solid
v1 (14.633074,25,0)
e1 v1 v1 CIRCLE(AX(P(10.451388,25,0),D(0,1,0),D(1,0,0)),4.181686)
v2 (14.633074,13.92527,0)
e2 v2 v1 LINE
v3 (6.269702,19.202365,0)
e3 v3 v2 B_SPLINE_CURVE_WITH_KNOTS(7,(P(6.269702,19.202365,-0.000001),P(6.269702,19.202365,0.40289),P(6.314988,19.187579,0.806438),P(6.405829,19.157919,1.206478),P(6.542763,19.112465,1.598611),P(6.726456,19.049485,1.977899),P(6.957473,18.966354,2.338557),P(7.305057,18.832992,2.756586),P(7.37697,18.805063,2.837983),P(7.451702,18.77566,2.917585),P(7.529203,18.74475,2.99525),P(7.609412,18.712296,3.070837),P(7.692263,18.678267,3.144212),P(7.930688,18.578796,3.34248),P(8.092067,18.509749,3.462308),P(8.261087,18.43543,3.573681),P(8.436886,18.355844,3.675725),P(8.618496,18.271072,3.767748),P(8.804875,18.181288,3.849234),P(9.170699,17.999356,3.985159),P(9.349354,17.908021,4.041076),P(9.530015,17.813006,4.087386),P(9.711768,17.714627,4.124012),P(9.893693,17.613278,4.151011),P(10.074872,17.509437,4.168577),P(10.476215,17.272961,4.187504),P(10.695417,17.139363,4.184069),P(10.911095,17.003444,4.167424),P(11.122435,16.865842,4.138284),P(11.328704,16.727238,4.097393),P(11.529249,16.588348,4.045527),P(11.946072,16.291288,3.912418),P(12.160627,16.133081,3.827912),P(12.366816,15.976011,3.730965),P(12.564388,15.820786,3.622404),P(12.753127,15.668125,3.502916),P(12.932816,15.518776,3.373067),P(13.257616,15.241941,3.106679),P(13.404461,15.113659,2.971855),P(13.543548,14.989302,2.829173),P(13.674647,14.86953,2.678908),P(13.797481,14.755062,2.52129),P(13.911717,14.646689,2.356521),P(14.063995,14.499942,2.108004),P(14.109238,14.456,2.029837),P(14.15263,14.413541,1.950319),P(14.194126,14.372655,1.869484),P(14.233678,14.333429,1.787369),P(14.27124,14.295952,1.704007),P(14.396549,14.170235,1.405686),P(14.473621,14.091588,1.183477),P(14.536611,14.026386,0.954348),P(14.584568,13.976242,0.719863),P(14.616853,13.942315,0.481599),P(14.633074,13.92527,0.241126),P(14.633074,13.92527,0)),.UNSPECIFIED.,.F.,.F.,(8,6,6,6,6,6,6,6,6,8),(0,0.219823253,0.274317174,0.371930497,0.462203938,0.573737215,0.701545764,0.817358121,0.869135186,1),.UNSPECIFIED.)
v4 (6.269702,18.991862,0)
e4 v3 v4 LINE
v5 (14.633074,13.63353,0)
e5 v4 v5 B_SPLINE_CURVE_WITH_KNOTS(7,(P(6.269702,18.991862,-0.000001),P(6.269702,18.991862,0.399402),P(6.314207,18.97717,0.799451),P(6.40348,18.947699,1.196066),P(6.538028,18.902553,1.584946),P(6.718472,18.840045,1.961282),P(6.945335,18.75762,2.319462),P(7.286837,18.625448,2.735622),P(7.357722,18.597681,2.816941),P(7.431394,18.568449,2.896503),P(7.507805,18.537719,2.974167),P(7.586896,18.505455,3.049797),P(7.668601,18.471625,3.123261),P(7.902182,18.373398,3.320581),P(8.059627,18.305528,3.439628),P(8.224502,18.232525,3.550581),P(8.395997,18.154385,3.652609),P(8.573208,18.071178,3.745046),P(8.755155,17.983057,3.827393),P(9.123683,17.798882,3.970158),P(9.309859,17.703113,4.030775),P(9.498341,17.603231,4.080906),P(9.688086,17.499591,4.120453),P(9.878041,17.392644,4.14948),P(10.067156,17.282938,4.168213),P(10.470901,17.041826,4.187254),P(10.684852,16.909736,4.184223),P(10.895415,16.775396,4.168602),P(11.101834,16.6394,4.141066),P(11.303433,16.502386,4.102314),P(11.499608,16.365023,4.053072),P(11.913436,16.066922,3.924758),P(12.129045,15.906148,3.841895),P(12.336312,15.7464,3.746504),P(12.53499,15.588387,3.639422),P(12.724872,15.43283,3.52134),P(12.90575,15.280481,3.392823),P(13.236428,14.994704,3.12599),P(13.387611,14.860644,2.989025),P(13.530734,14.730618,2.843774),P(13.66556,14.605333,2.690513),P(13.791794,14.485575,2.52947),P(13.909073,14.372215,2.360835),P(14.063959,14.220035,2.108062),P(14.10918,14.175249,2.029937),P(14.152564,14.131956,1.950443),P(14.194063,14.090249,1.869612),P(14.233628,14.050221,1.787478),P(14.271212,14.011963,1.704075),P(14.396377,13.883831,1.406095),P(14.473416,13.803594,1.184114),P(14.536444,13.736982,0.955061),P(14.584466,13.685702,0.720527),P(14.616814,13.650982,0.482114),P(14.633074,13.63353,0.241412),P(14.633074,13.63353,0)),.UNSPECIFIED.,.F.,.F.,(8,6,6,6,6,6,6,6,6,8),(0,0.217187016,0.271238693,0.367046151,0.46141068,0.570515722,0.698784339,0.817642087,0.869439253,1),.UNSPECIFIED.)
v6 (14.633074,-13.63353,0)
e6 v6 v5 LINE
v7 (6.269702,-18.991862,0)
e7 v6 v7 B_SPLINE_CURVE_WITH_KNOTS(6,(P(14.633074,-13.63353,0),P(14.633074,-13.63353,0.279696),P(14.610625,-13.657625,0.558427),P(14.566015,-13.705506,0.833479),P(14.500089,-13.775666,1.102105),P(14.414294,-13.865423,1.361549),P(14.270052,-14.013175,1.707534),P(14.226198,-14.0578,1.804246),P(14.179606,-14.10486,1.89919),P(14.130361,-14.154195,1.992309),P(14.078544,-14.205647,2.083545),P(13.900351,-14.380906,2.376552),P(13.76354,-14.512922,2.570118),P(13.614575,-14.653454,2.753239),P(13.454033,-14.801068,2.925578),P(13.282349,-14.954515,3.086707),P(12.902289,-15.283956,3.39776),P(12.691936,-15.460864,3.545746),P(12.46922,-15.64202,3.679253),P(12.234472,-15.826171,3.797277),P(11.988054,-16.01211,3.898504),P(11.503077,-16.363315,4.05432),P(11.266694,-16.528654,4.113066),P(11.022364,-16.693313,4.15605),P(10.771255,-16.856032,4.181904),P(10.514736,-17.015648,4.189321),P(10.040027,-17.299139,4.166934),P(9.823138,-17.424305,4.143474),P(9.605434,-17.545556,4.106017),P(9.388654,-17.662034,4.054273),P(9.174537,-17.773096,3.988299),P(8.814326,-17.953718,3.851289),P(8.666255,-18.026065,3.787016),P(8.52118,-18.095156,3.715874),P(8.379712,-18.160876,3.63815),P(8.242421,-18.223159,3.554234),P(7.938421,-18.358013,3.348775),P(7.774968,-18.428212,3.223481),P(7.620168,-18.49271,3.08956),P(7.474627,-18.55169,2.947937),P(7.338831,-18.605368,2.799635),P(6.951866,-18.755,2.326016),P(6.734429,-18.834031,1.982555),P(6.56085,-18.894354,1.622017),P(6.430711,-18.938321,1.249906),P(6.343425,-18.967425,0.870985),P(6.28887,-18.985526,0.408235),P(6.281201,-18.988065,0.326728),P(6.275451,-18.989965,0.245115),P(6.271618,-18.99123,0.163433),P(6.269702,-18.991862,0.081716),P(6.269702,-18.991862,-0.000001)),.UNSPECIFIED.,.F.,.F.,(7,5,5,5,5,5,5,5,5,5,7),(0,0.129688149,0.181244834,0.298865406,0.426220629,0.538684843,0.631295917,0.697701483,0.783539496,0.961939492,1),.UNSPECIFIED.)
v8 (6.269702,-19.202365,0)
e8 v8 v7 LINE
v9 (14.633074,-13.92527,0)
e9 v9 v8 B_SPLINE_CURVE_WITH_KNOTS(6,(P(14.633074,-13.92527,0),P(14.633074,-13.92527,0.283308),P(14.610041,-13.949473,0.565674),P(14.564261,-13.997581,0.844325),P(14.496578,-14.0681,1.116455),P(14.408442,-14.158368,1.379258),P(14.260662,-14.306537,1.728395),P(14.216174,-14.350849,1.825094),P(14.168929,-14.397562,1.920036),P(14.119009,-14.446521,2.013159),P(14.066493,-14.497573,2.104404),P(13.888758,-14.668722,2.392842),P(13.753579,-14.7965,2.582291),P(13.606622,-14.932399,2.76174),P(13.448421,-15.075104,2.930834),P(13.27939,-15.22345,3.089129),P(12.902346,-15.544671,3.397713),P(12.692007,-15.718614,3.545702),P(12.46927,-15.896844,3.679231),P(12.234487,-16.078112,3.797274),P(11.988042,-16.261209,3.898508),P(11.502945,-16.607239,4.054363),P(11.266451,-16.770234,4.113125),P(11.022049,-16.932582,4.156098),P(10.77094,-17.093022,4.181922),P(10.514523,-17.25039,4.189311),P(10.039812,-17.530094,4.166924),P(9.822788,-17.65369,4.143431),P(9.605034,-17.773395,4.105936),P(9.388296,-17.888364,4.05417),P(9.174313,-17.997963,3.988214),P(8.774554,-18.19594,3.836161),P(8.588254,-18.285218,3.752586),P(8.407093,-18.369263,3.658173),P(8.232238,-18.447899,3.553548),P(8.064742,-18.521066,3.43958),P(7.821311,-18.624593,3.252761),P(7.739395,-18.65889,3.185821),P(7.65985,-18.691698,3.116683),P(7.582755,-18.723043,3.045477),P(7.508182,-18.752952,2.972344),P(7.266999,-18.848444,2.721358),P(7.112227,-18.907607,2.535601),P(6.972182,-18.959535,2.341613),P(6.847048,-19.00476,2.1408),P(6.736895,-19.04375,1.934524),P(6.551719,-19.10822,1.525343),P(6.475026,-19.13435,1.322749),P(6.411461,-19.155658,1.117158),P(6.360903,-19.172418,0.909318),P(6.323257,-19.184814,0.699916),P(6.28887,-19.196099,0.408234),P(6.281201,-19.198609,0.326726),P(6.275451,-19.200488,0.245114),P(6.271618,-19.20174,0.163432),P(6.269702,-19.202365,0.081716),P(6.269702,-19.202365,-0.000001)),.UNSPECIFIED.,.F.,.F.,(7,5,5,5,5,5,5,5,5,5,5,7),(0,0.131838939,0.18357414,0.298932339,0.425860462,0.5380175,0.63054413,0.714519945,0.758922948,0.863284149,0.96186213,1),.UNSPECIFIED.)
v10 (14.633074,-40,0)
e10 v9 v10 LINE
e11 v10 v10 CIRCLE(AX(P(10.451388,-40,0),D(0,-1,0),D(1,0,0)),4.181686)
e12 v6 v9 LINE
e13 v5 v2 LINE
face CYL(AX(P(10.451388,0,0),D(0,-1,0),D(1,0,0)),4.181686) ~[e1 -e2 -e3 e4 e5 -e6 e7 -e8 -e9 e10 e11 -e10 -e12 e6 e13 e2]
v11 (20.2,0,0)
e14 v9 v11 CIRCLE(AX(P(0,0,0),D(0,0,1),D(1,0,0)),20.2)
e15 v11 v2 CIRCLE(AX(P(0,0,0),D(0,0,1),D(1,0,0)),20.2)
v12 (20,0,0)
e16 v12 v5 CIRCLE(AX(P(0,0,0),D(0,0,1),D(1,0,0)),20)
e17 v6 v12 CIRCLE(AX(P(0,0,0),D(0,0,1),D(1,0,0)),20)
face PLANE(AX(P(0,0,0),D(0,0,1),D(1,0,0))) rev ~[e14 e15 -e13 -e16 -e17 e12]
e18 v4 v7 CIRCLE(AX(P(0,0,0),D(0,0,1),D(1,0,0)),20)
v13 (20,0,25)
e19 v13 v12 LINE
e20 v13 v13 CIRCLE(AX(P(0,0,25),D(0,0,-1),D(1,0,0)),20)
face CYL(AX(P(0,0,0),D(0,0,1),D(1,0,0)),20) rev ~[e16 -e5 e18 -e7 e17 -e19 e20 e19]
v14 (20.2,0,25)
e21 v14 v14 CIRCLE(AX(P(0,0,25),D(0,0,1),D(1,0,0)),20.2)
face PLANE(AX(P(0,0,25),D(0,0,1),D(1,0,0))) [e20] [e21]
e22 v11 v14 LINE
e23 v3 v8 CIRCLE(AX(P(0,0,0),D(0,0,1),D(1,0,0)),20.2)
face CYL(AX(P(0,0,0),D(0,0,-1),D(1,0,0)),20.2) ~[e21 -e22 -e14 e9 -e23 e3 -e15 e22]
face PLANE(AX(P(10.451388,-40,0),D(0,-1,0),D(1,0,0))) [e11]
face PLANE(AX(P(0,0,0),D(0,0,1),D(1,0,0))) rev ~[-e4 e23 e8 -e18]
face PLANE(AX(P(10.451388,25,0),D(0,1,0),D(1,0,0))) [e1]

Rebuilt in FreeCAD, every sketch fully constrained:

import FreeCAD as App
import Part
import Sketcher
from FreeCAD import Vector
Q = App.Units.Quantity

doc = App.newDocument("Part")
params = doc.addObject("Spreadsheet::Sheet", "Params")
for row, (alias, value) in enumerate([
    ("sketch1_diameter", "40.4 mm"),
    ("pad1_length", "25 mm"),
    ("sketch2_diameter", "40 mm"),
    ("pocket1_length", "25 mm"),
    ("sketch3_diameter", "40 mm"),
    ("pocket2_length", "25 mm"),
    ("pad2_length", "40 mm"),
    ("pad3_length", "25 mm"),
], start=1):
    params.set(f"A{row}", alias)
    params.set(f"B{row}", "=" + value)
    params.setAlias(f"B{row}", alias)

body = doc.addObject("PartDesign::Body", "Body")

# Sketch on XY plane
sketch1 = body.newObject("Sketcher::SketchObject", "Sketch")
sketch1.AttachmentSupport = (doc.getObject("XY_Plane"), [""])
sketch1.MapMode = "FlatFace"
sketch1.addGeometry(Part.Circle(Vector(0, 0, 0), Vector(0, 0, 1), 20), False)
sketch1.addConstraint(Sketcher.Constraint("Coincident", 0, 3, -1, 1))
sketch1.addConstraint(Sketcher.Constraint("Diameter", 0, Q("40.4 mm")))
sketch1.setExpression("Constraints[1]", "Params.sketch1_diameter")
pad1 = body.newObject("PartDesign::Pad", "Pad")
pad1.Profile = sketch1
pad1.setExpression("Length", "Params.pad1_length")

# Sketch on XY plane
sketch2 = body.newObject("Sketcher::SketchObject", "Sketch001")
sketch2.AttachmentSupport = (doc.getObject("XY_Plane"), [""])
sketch2.MapMode = "FlatFace"
sketch2.addGeometry(Part.Circle(Vector(0, 0, 0), Vector(0, 0, 1), 20), False)
sketch2.addConstraint(Sketcher.Constraint("Coincident", 0, 3, -1, 1))
sketch2.addConstraint(Sketcher.Constraint("Diameter", 0, Q("40 mm")))
sketch2.setExpression("Constraints[1]", "Params.sketch2_diameter")
pocket1 = body.newObject("PartDesign::Pocket", "Pocket")
pocket1.Profile = sketch2
pocket1.setExpression("Length", "Params.pocket1_length")
pocket1.Midplane = True

# Sketch on XY plane
sketch3 = body.newObject("Sketcher::SketchObject", "Sketch002")
sketch3.AttachmentSupport = (doc.getObject("XY_Plane"), [""])
sketch3.MapMode = "FlatFace"
sketch3.AttachmentOffset = App.Placement(Vector(0, 0, 12.5), App.Rotation())
sketch3.addGeometry(Part.Circle(Vector(0, 0, 0), Vector(0, 0, 1), 20), False)
sketch3.addConstraint(Sketcher.Constraint("Coincident", 0, 3, -1, 1))
sketch3.addConstraint(Sketcher.Constraint("Diameter", 0, Q("40 mm")))
sketch3.setExpression("Constraints[1]", "Params.sketch3_diameter")
pocket2 = body.newObject("PartDesign::Pocket", "Pocket001")
pocket2.Profile = sketch3
pocket2.setExpression("Length", "Params.pocket2_length")
pocket2.Reversed = True

# Sketch on XZ plane
sketch4 = body.newObject("Sketcher::SketchObject", "Sketch003")
sketch4.AttachmentSupport = (doc.getObject("XZ_Plane"), [""])
sketch4.MapMode = "FlatFace"
sketch4.addGeometry(Part.Circle(Vector(10.5, 0, 0), Vector(0, 0, 1), 4.2), False)
sketch4.addConstraint(Sketcher.Constraint("PointOnObject", 0, 3, -1))
sketch4.addConstraint(Sketcher.Constraint("Diameter", 0, Q("8.363372 mm")))
sketch4.addConstraint(Sketcher.Constraint("DistanceX", -1, 1, 0, 3, Q("10.451388 mm")))
pad2 = body.newObject("PartDesign::Pad", "Pad001")
pad2.Profile = sketch4
pad2.setExpression("Length", "Params.pad2_length")

# Sketch on XZ plane
sketch5 = body.newObject("Sketcher::SketchObject", "Sketch004")
sketch5.AttachmentSupport = (doc.getObject("XZ_Plane"), [""])
sketch5.MapMode = "FlatFace"
sketch5.addGeometry(Part.Circle(Vector(10.5, 0, 0), Vector(0, 0, 1), 4.2), False)
sketch5.addConstraint(Sketcher.Constraint("PointOnObject", 0, 3, -1))
sketch5.addConstraint(Sketcher.Constraint("Diameter", 0, Q("8.363372 mm")))
sketch5.addConstraint(Sketcher.Constraint("DistanceX", -1, 1, 0, 3, Q("10.451388 mm")))
pad3 = body.newObject("PartDesign::Pad", "Pad002")
pad3.Profile = sketch5
pad3.setExpression("Length", "Params.pad3_length")
pad3.Reversed = True

doc.recompute()
